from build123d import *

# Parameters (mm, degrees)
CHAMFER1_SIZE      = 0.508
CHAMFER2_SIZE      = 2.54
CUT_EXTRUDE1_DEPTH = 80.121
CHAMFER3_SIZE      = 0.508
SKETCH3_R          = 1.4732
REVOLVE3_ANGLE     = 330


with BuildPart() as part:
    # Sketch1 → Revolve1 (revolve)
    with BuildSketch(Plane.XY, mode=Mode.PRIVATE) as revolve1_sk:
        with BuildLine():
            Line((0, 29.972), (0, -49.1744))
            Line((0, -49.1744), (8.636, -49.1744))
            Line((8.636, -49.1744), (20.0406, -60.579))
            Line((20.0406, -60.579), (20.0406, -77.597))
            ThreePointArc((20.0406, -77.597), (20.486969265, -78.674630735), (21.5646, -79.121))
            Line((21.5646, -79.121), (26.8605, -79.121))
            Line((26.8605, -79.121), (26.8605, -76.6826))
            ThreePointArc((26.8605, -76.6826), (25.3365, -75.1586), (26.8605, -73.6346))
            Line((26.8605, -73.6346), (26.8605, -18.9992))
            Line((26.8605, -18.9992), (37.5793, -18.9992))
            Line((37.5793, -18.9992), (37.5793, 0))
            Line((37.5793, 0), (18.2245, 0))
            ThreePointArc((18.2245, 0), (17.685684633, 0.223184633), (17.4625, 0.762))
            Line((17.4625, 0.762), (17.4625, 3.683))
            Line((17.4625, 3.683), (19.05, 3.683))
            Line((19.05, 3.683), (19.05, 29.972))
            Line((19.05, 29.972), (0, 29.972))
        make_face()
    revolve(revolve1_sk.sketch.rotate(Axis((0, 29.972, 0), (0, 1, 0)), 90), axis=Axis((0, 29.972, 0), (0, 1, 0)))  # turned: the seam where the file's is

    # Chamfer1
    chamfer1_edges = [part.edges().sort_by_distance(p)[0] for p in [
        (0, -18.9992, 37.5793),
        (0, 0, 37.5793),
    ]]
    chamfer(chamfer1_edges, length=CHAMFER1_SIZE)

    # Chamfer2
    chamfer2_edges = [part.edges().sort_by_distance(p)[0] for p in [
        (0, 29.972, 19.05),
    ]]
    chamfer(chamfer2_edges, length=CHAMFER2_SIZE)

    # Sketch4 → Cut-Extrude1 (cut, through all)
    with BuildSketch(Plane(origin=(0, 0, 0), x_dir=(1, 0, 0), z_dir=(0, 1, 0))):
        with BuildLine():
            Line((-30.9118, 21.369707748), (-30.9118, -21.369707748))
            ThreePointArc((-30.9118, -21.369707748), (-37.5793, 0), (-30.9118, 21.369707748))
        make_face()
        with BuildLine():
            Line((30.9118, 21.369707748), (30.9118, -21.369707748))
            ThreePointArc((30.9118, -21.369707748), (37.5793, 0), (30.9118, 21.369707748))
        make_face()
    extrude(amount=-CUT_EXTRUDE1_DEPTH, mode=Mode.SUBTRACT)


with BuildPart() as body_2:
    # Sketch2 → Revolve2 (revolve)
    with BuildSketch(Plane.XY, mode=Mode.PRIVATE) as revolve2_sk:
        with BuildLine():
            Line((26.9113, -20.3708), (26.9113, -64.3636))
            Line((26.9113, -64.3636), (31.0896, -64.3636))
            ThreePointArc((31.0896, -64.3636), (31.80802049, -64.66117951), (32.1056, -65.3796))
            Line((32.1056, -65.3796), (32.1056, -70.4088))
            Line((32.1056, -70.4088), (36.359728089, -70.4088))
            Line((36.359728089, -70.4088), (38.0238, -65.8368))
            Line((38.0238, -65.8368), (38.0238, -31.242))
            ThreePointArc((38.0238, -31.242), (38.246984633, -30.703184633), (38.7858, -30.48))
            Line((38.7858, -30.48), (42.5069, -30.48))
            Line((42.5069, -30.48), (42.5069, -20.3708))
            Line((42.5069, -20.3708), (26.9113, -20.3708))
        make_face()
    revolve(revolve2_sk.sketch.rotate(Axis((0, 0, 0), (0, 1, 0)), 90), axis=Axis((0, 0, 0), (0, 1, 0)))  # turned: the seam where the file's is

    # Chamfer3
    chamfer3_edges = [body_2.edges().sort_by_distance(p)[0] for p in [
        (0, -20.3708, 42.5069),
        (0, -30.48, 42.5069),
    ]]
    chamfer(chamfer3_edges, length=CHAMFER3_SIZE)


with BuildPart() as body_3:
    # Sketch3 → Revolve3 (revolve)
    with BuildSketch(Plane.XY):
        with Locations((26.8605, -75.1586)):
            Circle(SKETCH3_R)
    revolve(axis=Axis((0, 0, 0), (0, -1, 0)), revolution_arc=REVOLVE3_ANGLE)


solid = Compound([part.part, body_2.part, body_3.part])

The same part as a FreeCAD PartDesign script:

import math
import FreeCAD as App
import Part
import Sketcher

V = App.Vector
Q = App.Units.Quantity


def edges_at(feature, points):
    """Names of the edges that pass closest to the given points."""
    edges = feature.Shape.Edges
    near = lambda p: min(range(len(edges)), key=lambda i: edges[i].distToShape(Part.Vertex(*p))[0])
    return sorted({f"Edge{near(p) + 1}" for p in points})

doc = App.newDocument("Part")
body = doc.addObject("PartDesign::Body", "Body")

# Sketch on XY plane
sketch1 = doc.addObject("Sketcher::SketchObject", "Sketch")
body.addObject(sketch1)
sketch1.AttachmentSupport = (doc.XY_Plane, [""])
sketch1.MapMode = "FlatFace"
sketch1.addGeometry([
    Part.LineSegment(V(0, 30, 0), V(0, -49.2, 0)),  # 0
    Part.LineSegment(V(0, -49.2, 0), V(8.6, -49.2, 0)),  # 1
    Part.LineSegment(V(8.6, -49.2, 0), V(20, -60.6, 0)),  # 2
    Part.LineSegment(V(20, -60.6, 0), V(20, -77.6, 0)),  # 3
    Part.ArcOfCircle(Part.Circle(V(21.6, -77.6, 0), V(0, 0, 1), 1.5), math.radians(180), math.radians(270)),  # 4
    Part.LineSegment(V(21.6, -79.1, 0), V(26.9, -79.1, 0)),  # 5
    Part.LineSegment(V(26.9, -79.1, 0), V(26.9, -76.7, 0)),  # 6
    Part.ArcOfCircle(Part.Circle(V(26.9, -75.2, 0), V(0, 0, 1), 1.5), math.radians(90), math.radians(270)),  # 7
    Part.LineSegment(V(26.9, -73.6, 0), V(26.9, -19, 0)),  # 8
    Part.LineSegment(V(26.9, -19, 0), V(37.6, -19, 0)),  # 9
    Part.LineSegment(V(37.6, -19, 0), V(37.6, 0, 0)),  # 10
    Part.LineSegment(V(37.6, 0, 0), V(18.2, 0, 0)),  # 11
    Part.ArcOfCircle(Part.Circle(V(18.2, 0.8, 0), V(0, 0, 1), 0.8), math.radians(-180), math.radians(-90)),  # 12
    Part.LineSegment(V(17.5, 0.8, 0), V(17.5, 3.7, 0)),  # 13
    Part.LineSegment(V(17.5, 3.7, 0), V(19.1, 3.7, 0)),  # 14
    Part.LineSegment(V(19.1, 3.7, 0), V(19.1, 30, 0)),  # 15
    Part.LineSegment(V(19.1, 30, 0), V(0, 30, 0)),  # 16
], False)
sketch1.addConstraint([
    Sketcher.Constraint("Coincident", 0, 2, 1, 1),
    Sketcher.Constraint("Coincident", 1, 2, 2, 1),
    Sketcher.Constraint("Coincident", 2, 2, 3, 1),
    Sketcher.Constraint("Tangent", 3, 2, 4, 1),
    Sketcher.Constraint("Tangent", 4, 2, 5, 1),
    Sketcher.Constraint("Coincident", 5, 2, 6, 1),
    Sketcher.Constraint("Coincident", 6, 2, 7, 2),
    Sketcher.Constraint("Coincident", 7, 1, 8, 1),
    Sketcher.Constraint("Coincident", 8, 2, 9, 1),
    Sketcher.Constraint("Coincident", 9, 2, 10, 1),
    Sketcher.Constraint("Coincident", 10, 2, 11, 1),
    Sketcher.Constraint("Tangent", 11, 2, 12, 2),
    Sketcher.Constraint("Tangent", 12, 1, 13, 1),
    Sketcher.Constraint("Coincident", 13, 2, 14, 1),
    Sketcher.Constraint("Coincident", 14, 2, 15, 1),
    Sketcher.Constraint("Coincident", 15, 2, 16, 1),
    Sketcher.Constraint("Coincident", 16, 2, 0, 1),
    Sketcher.Constraint("Vertical", 0),
    Sketcher.Constraint("Horizontal", 1),
    Sketcher.Constraint("Vertical", 3),
    Sketcher.Constraint("Horizontal", 5),
    Sketcher.Constraint("Vertical", 6),
    Sketcher.Constraint("Vertical", 8),
    Sketcher.Constraint("Horizontal", 9),
    Sketcher.Constraint("Vertical", 10),
    Sketcher.Constraint("Horizontal", 11),
    Sketcher.Constraint("Vertical", 13),
    Sketcher.Constraint("Horizontal", 14),
    Sketcher.Constraint("Vertical", 15),
    Sketcher.Constraint("Horizontal", 16),
    Sketcher.Constraint("Equal", 4, 7),
    Sketcher.Constraint("PointOnObject", 0, 2, -2),
    Sketcher.Constraint("PointOnObject", 10, 2, -1),
    Sketcher.Constraint("Vertical", 7, 3, 5, 2),
    Sketcher.Constraint("Vertical", 6, 2, 7, 1),
    Sketcher.Constraint("Radius", 4, Q("0.06 in")),
    Sketcher.Constraint("Radius", 12, Q("0.03 in")),
    Sketcher.Constraint("Angle", 2, Q("-45 deg")),
    Sketcher.Constraint("DistanceX", 1, 1, 1, 2, Q("0.34 in")),
    Sketcher.Constraint("DistanceX", 16, 2, 16, 1, Q("0.75 in")),
    Sketcher.Constraint("DistanceY", 3, 2, 3, 1, Q("0.67 in")),
    Sketcher.Constraint("DistanceX", 9, 1, 9, 2, Q("0.422 in")),
    Sketcher.Constraint("DistanceX", 11, 2, 11, 1, Q("0.762 in")),
    Sketcher.Constraint("DistanceX", 14, 1, 14, 2, Q("0.0625 in")),
    Sketcher.Constraint("DistanceY", 0, 2, 0, 1, Q("3.116 in")),
    Sketcher.Constraint("DistanceY", 6, 1, 6, 2, Q("0.096 in")),
    Sketcher.Constraint("DistanceY", 8, 1, 8, 2, Q("2.151 in")),
    Sketcher.Constraint("DistanceY", 10, 1, 10, 2, Q("0.748 in")),
    Sketcher.Constraint("DistanceY", 13, 1, 13, 2, Q("0.115 in")),
    Sketcher.Constraint("DistanceY", 15, 1, 15, 2, Q("1.035 in")),
])
revolution = doc.addObject("PartDesign::Revolution", "Revolution")
body.addObject(revolution)
revolution.Profile = sketch1
revolution.ReferenceAxis = (sketch1, ["V_Axis"])
revolution.Angle = 360
doc.recompute()

chamfer = doc.addObject("PartDesign::Chamfer", "Chamfer")
body.addObject(chamfer)
chamfer.Base = (revolution, edges_at(revolution, [(0, -18.999, 37.579), (0, 0, 37.579)]))
chamfer.Size = Q("0.02 in")
doc.recompute()

chamfer2 = doc.addObject("PartDesign::Chamfer", "Chamfer001")
body.addObject(chamfer2)
chamfer2.Base = (chamfer, edges_at(chamfer, [(0, 29.972, 19.05)]))
chamfer2.Size = Q("0.1 in")

# Sketch on XZ plane
sketch2 = doc.addObject("Sketcher::SketchObject", "Sketch001")
body.addObject(sketch2)
sketch2.AttachmentSupport = (doc.XZ_Plane, [""])
sketch2.MapMode = "FlatFace"
sketch2.addGeometry([
    Part.LineSegment(V(-31, 21, 0), V(-31, -21, 0)),
    Part.ArcOfCircle(Part.Circle(V(0, 0, 0), V(0, 0, 1), 38), math.radians(145), math.radians(215)),
    Part.LineSegment(V(31, -21, 0), V(31, 21, 0)),
    Part.ArcOfCircle(Part.Circle(V(0, 0, 0), V(0, 0, 1), 38), math.radians(-35), math.radians(35)),
], False)
sketch2.addConstraint([
    Sketcher.Constraint("Coincident", 0, 1, 1, 1),
    Sketcher.Constraint("Coincident", 1, 2, 0, 2),
    Sketcher.Constraint("Coincident", 2, 1, 3, 1),
    Sketcher.Constraint("Coincident", 3, 2, 2, 2),
    Sketcher.Constraint("Vertical", 0),
    Sketcher.Constraint("Vertical", 2),
    Sketcher.Constraint("Coincident", 1, 3, -1, 1),
    Sketcher.Constraint("Coincident", 3, 3, -1, 1),
    Sketcher.Constraint("Equal", 1, 3),
    Sketcher.Constraint("Horizontal", 1, 2, 2, 1),
    Sketcher.Constraint("Radius", 1, Q("1.4795 in")),
    Sketcher.Constraint("DistanceX", 0, 1, -1, 1, Q("1.217 in")),
])
pocket1 = doc.addObject("PartDesign::Pocket", "Pocket")
body.addObject(pocket1)
pocket1.Profile = sketch2
pocket1.Type = "ThroughAll"
pocket1.Reversed = True
body2 = doc.addObject("PartDesign::Body", "Body001")

# Sketch on XY plane
sketch3 = doc.addObject("Sketcher::SketchObject", "Sketch002")
body2.addObject(sketch3)
sketch3.AttachmentSupport = (doc.getObject("XY_Plane001"), [""])
sketch3.MapMode = "FlatFace"
sketch3.addGeometry([
    Part.LineSegment(V(26.9, -20.4, 0), V(26.9, -64.4, 0)),  # 0
    Part.LineSegment(V(26.9, -64.4, 0), V(31.1, -64.4, 0)),  # 1
    Part.ArcOfCircle(Part.Circle(V(31.1, -65.4, 0), V(0, 0, 1), 1), math.radians(0), math.radians(90)),  # 2
    Part.LineSegment(V(32.1, -65.4, 0), V(32.1, -70.4, 0)),  # 3
    Part.LineSegment(V(32.1, -70.4, 0), V(36.4, -70.4, 0)),  # 4
    Part.LineSegment(V(36.4, -70.4, 0), V(38, -65.8, 0)),  # 5
    Part.LineSegment(V(38, -65.8, 0), V(38, -31.2, 0)),  # 6
    Part.ArcOfCircle(Part.Circle(V(38.8, -31.2, 0), V(0, 0, 1), 0.8), math.radians(90), math.radians(180)),  # 7
    Part.LineSegment(V(38.8, -30.5, 0), V(42.5, -30.5, 0)),  # 8
    Part.LineSegment(V(42.5, -30.5, 0), V(42.5, -20.4, 0)),  # 9
    Part.LineSegment(V(42.5, -20.4, 0), V(26.9, -20.4, 0)),  # 10
], False)
sketch3.addConstraint([
    Sketcher.Constraint("Coincident", 0, 2, 1, 1),
    Sketcher.Constraint("Tangent", 1, 2, 2, 2),
    Sketcher.Constraint("Tangent", 2, 1, 3, 1),
    Sketcher.Constraint("Coincident", 3, 2, 4, 1),
    Sketcher.Constraint("Coincident", 4, 2, 5, 1),
    Sketcher.Constraint("Coincident", 5, 2, 6, 1),
    Sketcher.Constraint("Tangent", 6, 2, 7, 2),
    Sketcher.Constraint("Tangent", 7, 1, 8, 1),
    Sketcher.Constraint("Coincident", 8, 2, 9, 1),
    Sketcher.Constraint("Coincident", 9, 2, 10, 1),
    Sketcher.Constraint("Coincident", 10, 2, 0, 1),
    Sketcher.Constraint("Vertical", 0),
    Sketcher.Constraint("Horizontal", 1),
    Sketcher.Constraint("Vertical", 3),
    Sketcher.Constraint("Horizontal", 4),
    Sketcher.Constraint("Vertical", 6),
    Sketcher.Constraint("Horizontal", 8),
    Sketcher.Constraint("Vertical", 9),
    Sketcher.Constraint("Horizontal", 10),
    Sketcher.Constraint("Radius", 2, Q("0.04 in")),
    Sketcher.Constraint("Radius", 7, Q("0.03 in")),
    Sketcher.Constraint("Angle", 5, Q("70 deg")),
    Sketcher.Constraint("DistanceY", 7, 1, -1, 1, Q("1.2 in")),
    Sketcher.Constraint("DistanceX", 10, 2, 10, 1, Q("0.614 in")),
    Sketcher.Constraint("DistanceY", 0, 2, 0, 1, Q("1.732 in")),
    Sketcher.Constraint("DistanceY", 3, 2, 3, 1, Q("0.198 in")),
    Sketcher.Constraint("DistanceY", 6, 1, 6, 2, Q("1.362 in")),
    Sketcher.Constraint("DistanceY", 9, 1, 9, 2, Q("0.398 in")),
    Sketcher.Constraint("DistanceX", 1, 1, 1, 2, Q("0.1645 in")),
    Sketcher.Constraint("DistanceX", 8, 1, 8, 2, Q("0.1465 in")),
    Sketcher.Constraint("DistanceX", -1, 1, 2, 3, Q("1.224 in")),
])
revolution2 = doc.addObject("PartDesign::Revolution", "Revolution001")
body2.addObject(revolution2)
revolution2.Profile = sketch3
revolution2.ReferenceAxis = (sketch3, ["V_Axis"])
revolution2.Angle = 360
doc.recompute()

chamfer3 = doc.addObject("PartDesign::Chamfer", "Chamfer002")
body2.addObject(chamfer3)
chamfer3.Base = (revolution2, edges_at(revolution2, [(0, -20.371, 42.507), (0, -30.48, 42.507)]))
chamfer3.Size = Q("0.02 in")
body3 = doc.addObject("PartDesign::Body", "Body002")

# Sketch on XY plane
sketch4 = doc.addObject("Sketcher::SketchObject", "Sketch003")
body3.addObject(sketch4)
sketch4.AttachmentSupport = (doc.getObject("XY_Plane002"), [""])
sketch4.MapMode = "FlatFace"
sketch4.addGeometry(Part.Circle(V(26.9, -75.2, 0), V(0, 0, 1), 1.5), False)
sketch4.addConstraint([
    Sketcher.Constraint("Diameter", 0, Q("0.116 in")),
    Sketcher.Constraint("DistanceY", 0, 3, -1, 1, Q("2.959 in")),
    Sketcher.Constraint("DistanceX", -1, 1, 0, 3, Q("1.0575 in")),
])
revolution3 = doc.addObject("PartDesign::Revolution", "Revolution002")
body3.addObject(revolution3)
revolution3.Profile = sketch4
revolution3.ReferenceAxis = (sketch4, ["V_Axis"])
revolution3.Angle = 330
revolution3.Reversed = True

doc.recompute()
